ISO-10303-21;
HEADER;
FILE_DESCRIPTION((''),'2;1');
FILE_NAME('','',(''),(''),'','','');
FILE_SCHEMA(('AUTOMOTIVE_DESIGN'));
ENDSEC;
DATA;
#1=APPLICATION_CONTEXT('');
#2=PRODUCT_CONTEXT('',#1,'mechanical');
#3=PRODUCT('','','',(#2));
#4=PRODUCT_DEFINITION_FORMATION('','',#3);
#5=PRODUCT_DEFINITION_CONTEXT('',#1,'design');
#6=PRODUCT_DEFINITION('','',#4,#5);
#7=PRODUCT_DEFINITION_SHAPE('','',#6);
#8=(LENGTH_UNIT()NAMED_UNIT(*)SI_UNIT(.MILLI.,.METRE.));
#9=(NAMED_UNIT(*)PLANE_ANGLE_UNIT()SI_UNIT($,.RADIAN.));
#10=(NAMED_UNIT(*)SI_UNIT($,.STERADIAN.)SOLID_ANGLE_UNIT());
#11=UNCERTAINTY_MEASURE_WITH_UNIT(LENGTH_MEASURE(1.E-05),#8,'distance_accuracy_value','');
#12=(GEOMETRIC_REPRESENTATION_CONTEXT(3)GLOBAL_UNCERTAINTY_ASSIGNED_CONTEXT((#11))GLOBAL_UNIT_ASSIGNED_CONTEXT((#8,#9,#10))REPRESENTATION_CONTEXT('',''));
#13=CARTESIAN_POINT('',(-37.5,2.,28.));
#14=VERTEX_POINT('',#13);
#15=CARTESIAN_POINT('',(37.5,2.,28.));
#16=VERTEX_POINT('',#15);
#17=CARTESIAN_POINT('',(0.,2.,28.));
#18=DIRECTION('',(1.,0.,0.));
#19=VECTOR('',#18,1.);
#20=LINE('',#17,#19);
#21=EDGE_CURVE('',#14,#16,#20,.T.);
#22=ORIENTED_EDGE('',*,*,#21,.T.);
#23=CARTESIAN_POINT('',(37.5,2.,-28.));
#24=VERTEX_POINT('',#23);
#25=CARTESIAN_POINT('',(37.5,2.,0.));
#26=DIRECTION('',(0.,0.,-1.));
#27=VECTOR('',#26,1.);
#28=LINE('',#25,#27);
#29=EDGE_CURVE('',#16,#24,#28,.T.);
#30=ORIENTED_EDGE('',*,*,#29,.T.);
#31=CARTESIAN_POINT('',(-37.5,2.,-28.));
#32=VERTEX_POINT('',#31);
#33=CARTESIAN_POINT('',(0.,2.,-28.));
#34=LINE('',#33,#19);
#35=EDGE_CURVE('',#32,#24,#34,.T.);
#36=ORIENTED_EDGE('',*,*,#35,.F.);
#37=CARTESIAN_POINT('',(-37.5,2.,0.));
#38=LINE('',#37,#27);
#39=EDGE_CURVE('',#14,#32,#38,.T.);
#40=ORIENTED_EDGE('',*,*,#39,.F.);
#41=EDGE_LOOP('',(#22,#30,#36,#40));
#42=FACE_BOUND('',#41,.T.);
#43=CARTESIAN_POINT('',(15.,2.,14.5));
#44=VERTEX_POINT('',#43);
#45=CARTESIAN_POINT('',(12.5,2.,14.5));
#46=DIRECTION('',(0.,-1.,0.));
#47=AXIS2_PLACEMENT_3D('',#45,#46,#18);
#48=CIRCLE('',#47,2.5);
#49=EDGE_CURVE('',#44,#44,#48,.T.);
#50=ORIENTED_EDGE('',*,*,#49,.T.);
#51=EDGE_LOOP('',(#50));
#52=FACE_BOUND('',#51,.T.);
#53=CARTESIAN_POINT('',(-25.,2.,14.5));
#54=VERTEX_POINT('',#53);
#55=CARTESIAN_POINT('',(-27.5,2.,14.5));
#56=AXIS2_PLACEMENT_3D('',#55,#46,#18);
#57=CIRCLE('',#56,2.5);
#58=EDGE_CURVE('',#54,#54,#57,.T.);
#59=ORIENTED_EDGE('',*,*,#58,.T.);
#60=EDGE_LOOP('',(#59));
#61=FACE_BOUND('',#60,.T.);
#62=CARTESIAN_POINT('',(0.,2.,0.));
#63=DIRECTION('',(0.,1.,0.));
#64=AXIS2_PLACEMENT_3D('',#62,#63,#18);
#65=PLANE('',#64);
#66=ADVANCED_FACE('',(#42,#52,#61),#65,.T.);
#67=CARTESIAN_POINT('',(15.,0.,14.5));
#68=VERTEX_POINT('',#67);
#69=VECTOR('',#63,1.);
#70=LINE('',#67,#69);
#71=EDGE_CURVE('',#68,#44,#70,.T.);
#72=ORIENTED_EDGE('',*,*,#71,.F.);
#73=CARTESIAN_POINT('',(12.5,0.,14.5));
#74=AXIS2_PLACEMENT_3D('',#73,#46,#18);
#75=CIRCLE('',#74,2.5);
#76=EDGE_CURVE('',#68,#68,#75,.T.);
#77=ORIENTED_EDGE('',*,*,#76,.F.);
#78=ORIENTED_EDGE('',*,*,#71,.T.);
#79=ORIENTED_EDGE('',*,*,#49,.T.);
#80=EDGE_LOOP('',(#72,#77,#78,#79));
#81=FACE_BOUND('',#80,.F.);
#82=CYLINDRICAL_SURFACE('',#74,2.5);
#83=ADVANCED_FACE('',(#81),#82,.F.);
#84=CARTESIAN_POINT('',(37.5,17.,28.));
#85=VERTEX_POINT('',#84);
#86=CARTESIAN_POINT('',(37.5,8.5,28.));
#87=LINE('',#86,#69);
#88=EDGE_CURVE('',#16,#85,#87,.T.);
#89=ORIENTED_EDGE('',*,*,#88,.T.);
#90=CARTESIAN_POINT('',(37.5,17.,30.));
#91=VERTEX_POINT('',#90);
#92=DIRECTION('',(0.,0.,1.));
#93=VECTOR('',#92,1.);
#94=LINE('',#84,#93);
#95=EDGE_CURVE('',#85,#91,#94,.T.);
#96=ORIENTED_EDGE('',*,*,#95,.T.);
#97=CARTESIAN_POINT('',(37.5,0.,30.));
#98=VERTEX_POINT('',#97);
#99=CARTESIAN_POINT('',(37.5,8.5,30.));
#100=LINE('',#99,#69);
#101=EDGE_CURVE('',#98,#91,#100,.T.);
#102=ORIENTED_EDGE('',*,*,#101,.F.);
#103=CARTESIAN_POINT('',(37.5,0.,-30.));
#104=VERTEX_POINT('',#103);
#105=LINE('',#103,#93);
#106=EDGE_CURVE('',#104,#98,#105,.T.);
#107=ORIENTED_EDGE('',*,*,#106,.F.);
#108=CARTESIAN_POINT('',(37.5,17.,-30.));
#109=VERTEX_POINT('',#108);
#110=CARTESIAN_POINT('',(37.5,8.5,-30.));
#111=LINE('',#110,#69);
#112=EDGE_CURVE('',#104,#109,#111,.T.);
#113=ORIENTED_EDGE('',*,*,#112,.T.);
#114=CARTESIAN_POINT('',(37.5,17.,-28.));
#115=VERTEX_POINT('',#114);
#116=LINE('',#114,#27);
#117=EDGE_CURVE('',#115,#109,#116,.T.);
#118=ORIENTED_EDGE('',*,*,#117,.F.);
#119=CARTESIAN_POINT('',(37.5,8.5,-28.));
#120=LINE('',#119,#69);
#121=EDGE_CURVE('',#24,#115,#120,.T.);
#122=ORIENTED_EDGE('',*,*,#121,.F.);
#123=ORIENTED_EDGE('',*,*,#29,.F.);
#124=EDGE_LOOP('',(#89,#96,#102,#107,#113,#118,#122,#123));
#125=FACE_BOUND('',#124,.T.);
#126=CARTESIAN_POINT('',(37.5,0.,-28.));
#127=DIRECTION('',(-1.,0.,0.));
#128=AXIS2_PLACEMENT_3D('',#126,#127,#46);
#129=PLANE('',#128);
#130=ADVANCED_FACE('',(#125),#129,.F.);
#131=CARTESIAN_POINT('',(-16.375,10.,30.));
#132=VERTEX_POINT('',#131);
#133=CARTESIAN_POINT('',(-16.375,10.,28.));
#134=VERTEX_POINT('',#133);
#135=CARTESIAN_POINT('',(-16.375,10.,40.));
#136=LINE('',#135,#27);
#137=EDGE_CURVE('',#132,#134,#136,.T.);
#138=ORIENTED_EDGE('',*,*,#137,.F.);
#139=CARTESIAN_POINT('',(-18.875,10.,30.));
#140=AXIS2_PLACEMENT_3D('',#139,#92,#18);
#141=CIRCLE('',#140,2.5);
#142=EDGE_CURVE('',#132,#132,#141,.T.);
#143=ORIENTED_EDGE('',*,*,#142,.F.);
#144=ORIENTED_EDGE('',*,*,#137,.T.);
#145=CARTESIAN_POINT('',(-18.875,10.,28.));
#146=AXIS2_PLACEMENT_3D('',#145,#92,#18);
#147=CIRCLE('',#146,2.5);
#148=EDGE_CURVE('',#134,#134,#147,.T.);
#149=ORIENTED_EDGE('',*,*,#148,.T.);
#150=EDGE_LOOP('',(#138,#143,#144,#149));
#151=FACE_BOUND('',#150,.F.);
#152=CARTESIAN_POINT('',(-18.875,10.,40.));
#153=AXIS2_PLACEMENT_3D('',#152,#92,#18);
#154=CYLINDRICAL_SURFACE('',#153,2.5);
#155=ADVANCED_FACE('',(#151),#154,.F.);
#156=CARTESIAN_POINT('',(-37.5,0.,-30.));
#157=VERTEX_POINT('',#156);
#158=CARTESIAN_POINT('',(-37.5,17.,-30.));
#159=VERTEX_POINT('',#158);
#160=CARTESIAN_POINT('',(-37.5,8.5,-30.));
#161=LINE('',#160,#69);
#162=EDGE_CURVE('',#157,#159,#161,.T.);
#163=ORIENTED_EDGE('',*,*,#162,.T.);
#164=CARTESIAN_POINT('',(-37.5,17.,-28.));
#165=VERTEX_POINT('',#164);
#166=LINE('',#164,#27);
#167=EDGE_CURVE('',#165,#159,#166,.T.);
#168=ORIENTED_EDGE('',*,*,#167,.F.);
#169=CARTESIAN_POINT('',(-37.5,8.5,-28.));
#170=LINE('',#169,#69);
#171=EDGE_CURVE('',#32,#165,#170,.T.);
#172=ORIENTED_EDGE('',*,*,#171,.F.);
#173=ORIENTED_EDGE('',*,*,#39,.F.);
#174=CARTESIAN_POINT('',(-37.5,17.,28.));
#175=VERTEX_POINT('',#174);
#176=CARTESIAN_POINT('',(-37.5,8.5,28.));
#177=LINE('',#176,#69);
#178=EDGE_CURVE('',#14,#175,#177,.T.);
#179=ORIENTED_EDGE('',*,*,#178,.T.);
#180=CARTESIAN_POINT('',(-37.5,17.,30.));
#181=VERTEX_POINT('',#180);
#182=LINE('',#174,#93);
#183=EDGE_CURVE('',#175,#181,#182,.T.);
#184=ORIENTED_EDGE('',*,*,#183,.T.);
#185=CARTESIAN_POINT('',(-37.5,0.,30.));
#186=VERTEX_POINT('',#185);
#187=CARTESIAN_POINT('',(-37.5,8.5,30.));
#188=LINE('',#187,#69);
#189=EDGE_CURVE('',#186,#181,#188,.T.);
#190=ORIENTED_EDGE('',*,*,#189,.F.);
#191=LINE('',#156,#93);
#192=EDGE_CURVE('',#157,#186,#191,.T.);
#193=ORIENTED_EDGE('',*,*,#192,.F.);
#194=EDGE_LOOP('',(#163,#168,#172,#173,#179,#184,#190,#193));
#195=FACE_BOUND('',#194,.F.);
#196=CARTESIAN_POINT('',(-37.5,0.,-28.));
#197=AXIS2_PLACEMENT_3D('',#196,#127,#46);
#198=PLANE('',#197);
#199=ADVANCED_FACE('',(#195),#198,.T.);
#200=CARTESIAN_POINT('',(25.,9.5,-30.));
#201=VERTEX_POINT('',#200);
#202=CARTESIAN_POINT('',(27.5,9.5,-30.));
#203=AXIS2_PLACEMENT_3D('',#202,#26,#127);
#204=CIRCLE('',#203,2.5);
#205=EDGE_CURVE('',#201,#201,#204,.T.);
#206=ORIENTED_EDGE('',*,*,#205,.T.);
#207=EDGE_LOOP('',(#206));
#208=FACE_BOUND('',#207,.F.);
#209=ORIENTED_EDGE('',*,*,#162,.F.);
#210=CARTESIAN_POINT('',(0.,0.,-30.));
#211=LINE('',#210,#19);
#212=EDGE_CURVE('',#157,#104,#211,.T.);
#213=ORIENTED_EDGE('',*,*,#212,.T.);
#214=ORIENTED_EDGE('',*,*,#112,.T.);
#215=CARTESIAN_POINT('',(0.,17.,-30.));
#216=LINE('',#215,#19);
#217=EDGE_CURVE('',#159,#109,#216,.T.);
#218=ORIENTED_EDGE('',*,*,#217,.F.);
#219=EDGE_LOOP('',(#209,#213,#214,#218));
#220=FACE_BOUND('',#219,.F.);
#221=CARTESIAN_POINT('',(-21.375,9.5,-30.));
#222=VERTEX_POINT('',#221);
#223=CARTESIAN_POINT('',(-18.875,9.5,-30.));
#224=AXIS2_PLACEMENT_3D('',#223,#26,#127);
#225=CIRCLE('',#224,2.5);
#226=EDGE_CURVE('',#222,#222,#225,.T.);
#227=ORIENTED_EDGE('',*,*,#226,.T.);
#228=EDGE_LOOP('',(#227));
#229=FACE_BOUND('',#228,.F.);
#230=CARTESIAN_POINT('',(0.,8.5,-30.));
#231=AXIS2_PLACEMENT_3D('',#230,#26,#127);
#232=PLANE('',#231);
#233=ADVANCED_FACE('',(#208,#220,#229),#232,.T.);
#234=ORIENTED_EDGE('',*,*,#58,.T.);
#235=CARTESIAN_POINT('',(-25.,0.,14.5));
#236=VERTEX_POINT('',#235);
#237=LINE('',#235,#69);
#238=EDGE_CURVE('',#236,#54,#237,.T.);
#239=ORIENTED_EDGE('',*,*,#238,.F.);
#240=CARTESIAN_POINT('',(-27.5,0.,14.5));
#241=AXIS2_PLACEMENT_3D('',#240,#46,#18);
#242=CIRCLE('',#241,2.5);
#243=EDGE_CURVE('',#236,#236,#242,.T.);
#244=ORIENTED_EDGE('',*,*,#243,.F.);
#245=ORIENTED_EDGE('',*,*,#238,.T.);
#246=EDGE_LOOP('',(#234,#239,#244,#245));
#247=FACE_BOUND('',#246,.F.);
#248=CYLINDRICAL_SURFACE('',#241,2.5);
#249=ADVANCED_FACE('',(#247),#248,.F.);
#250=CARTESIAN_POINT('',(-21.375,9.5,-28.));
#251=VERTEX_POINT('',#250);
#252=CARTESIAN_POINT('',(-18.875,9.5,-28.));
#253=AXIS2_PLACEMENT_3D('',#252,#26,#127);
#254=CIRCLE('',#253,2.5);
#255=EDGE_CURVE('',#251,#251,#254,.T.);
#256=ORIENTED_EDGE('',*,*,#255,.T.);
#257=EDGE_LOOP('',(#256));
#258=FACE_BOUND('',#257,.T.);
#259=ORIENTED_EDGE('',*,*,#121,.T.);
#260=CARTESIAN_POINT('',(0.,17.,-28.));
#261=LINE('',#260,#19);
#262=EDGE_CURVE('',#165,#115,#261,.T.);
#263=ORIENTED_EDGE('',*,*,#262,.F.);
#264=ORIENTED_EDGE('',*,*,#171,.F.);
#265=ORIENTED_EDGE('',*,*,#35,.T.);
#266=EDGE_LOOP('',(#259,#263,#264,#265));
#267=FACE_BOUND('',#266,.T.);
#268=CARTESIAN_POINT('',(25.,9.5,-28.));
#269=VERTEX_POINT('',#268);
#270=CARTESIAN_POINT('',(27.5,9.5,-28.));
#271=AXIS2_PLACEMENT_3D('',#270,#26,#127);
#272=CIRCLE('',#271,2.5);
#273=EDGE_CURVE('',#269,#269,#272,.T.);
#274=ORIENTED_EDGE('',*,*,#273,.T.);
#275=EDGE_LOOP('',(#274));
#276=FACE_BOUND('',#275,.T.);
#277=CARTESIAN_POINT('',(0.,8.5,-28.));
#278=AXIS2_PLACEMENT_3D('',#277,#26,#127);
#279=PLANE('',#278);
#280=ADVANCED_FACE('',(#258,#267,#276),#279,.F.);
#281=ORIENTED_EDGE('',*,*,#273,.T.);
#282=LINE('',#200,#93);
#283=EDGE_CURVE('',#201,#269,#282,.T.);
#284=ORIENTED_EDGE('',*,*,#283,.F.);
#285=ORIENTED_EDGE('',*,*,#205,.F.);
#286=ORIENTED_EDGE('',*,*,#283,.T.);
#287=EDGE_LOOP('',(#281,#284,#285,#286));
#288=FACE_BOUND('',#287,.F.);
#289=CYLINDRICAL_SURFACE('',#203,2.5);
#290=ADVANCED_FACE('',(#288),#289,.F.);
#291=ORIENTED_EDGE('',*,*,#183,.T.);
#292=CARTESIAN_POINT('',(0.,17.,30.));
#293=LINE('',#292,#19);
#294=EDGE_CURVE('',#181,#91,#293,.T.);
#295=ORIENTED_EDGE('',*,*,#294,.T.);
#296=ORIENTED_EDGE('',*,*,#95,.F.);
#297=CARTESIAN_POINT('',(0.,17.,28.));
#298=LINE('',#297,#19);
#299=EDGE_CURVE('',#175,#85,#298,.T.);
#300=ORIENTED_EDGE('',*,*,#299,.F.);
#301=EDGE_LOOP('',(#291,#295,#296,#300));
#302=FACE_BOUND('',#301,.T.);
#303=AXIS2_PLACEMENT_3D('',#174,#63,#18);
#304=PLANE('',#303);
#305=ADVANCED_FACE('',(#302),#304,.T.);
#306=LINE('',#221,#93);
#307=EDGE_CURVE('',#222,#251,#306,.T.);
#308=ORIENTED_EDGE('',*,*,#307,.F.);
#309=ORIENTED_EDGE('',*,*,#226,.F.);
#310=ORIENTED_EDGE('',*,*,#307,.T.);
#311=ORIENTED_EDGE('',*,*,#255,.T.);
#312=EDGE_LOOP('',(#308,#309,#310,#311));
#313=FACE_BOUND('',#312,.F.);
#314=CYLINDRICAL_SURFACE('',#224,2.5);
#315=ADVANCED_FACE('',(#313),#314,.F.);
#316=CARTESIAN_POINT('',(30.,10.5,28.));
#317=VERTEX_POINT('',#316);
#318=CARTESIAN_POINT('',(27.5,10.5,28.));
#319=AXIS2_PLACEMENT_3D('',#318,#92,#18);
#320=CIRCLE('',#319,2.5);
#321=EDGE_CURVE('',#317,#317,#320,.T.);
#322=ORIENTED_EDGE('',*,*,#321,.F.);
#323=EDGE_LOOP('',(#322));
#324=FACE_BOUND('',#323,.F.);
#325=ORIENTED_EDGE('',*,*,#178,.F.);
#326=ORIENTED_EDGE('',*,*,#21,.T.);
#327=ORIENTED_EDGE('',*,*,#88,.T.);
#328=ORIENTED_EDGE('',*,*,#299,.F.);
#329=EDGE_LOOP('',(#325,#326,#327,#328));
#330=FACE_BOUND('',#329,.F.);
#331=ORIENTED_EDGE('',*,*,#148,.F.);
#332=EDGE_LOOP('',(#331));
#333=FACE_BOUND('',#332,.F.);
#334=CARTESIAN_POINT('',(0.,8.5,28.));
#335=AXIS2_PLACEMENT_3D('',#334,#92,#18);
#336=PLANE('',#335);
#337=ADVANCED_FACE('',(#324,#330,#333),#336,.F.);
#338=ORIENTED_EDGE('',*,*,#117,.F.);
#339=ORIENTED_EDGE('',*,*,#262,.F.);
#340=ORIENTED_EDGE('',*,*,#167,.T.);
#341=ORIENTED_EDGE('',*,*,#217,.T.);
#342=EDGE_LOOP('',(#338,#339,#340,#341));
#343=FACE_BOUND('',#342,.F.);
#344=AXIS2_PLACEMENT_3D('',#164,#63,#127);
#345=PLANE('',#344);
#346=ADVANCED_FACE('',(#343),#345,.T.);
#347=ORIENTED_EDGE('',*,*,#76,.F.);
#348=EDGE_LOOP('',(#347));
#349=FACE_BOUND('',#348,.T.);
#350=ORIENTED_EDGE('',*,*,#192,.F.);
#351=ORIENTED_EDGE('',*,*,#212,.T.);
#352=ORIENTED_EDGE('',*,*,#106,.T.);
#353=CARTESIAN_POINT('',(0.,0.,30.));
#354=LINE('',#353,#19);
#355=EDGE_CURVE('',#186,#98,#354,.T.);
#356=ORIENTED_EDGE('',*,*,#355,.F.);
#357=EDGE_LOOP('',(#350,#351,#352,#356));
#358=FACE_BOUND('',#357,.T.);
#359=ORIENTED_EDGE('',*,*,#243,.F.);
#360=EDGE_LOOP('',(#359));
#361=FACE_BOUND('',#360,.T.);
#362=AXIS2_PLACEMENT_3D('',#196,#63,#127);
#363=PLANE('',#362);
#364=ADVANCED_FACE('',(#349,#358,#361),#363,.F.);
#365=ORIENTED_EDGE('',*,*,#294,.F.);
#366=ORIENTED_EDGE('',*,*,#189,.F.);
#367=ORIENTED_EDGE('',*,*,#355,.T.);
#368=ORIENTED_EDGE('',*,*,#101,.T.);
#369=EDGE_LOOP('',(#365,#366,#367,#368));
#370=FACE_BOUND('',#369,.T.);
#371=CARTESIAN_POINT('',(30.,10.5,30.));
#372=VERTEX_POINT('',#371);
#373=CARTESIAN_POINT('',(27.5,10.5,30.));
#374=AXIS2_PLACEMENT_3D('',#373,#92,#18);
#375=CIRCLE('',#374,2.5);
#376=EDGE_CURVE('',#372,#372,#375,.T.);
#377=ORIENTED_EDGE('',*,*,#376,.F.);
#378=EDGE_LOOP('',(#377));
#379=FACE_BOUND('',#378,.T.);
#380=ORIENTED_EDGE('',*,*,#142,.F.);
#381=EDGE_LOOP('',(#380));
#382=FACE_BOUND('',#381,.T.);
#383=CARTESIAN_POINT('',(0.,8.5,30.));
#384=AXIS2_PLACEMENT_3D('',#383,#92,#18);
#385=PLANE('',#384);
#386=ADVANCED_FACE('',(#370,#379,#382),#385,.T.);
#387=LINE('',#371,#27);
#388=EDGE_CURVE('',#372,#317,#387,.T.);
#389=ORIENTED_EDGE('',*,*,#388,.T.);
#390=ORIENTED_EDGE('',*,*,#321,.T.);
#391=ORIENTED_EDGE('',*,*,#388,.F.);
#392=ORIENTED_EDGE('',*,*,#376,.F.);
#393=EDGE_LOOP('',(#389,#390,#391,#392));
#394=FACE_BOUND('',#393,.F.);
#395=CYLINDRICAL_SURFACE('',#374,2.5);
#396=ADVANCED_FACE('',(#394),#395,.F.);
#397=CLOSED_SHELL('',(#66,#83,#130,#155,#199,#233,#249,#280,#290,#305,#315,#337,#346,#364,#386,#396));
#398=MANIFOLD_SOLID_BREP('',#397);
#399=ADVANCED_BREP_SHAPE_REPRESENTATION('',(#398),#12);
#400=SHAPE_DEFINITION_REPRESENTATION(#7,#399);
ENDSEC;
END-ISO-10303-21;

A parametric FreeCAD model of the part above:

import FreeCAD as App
import Part
import Sketcher

V = App.Vector
Q = App.Units.Quantity

doc = App.newDocument("Part")
body = doc.addObject("PartDesign::Body", "Body")

sketch1 = body.newObject("Sketcher::SketchObject", "Sketch")
sketch1.AttachmentSupport = (doc.getObject("XZ_Plane"), [""])
sketch1.MapMode = "FlatFace"
sketch1.addGeometry([
    Part.LineSegment(V(-38, -28, 0), V(-38, 28, 0)),
    Part.LineSegment(V(-38, 28, 0), V(38, 28, 0)),
    Part.LineSegment(V(38, 28, 0), V(38, -28, 0)),
    Part.LineSegment(V(38, -28, 0), V(-38, -28, 0)),
], False)
sketch1.addConstraint([
    Sketcher.Constraint("Coincident", 0, 2, 1, 1),
    Sketcher.Constraint("Coincident", 1, 2, 2, 1),
    Sketcher.Constraint("Coincident", 2, 2, 3, 1),
    Sketcher.Constraint("Coincident", 3, 2, 0, 1),
    Sketcher.Constraint("Vertical", 0),
    Sketcher.Constraint("Horizontal", 1),
    Sketcher.Constraint("Vertical", 2),
    Sketcher.Constraint("Horizontal", 3),
    Sketcher.Constraint("Symmetric", 0, 2, 2, 2, -1, 1),
    Sketcher.Constraint("DistanceX", 1, 1, 1, 2, Q("75 mm")),
    Sketcher.Constraint("DistanceY", 0, 1, 0, 2, Q("56 mm")),
])
pad1 = body.newObject("PartDesign::Pad", "Pad")
pad1.Profile = sketch1
pad1.Length = 2
pad1.Reversed = True

sketch2 = body.newObject("Sketcher::SketchObject", "Sketch001")
sketch2.AttachmentSupport = (doc.getObject("XY_Plane"), [""])
sketch2.MapMode = "FlatFace"
sketch2.AttachmentOffset = App.Placement(V(0, 0, 28), App.Rotation())
sketch2.addGeometry([
    Part.LineSegment(V(-38, 17, 0), V(-38, 0, 0)),
    Part.LineSegment(V(-38, 0, 0), V(38, 0, 0)),
    Part.LineSegment(V(38, 0, 0), V(38, 17, 0)),
    Part.LineSegment(V(38, 17, 0), V(-38, 17, 0)),
], False)
sketch2.addConstraint([
    Sketcher.Constraint("Coincident", 0, 2, 1, 1),
    Sketcher.Constraint("Coincident", 1, 2, 2, 1),
    Sketcher.Constraint("Coincident", 2, 2, 3, 1),
    Sketcher.Constraint("Coincident", 3, 2, 0, 1),
    Sketcher.Constraint("Vertical", 0),
    Sketcher.Constraint("Horizontal", 1),
    Sketcher.Constraint("Vertical", 2),
    Sketcher.Constraint("Horizontal", 3),
    Sketcher.Constraint("Symmetric", 0, 2, 1, 2, -1, 1),
    Sketcher.Constraint("DistanceX", 1, 1, 1, 2, Q("75 mm")),
    Sketcher.Constraint("DistanceY", 0, 2, 0, 1, Q("17 mm")),
])
pad2 = body.newObject("PartDesign::Pad", "Pad001")
pad2.Profile = sketch2
pad2.Length = 2
doc.recompute()

mirrored = body.newObject("PartDesign::Mirrored", "Mirrored")
mirrored.Originals = [pad2]
mirrored.MirrorPlane = (doc.getObject("XY_Plane"), [""])
body.Tip = mirrored

sketch3 = body.newObject("Sketcher::SketchObject", "Sketch002")
sketch3.AttachmentSupport = (doc.getObject("XY_Plane"), [""])
sketch3.MapMode = "FlatFace"
sketch3.AttachmentOffset = App.Placement(V(0, 0, 40), App.Rotation())
sketch3.addGeometry(Part.Circle(V(-18.9, 10, 0), V(0, 0, 1), 2.5), False)
sketch3.addConstraint([
    Sketcher.Constraint("Diameter", 0, Q("5 mm")),
    Sketcher.Constraint("DistanceY", -1, 1, 0, 3, Q("10 mm")),
    Sketcher.Constraint("DistanceX", 0, 3, -1, 1, Q("18.875 mm")),
])
pocket1 = body.newObject("PartDesign::Pocket", "Pocket")
pocket1.Profile = sketch3
pocket1.Length = 12

sketch4 = body.newObject("Sketcher::SketchObject", "Sketch003")
sketch4.AttachmentSupport = (doc.getObject("XY_Plane"), [""])
sketch4.MapMode = "FlatFace"
sketch4.AttachmentOffset = App.Placement(V(0, 0, 30), App.Rotation())
sketch4.addGeometry(Part.Circle(V(27.5, 10.5, 0), V(0, 0, 1), 2.5), False)
sketch4.addConstraint([
    Sketcher.Constraint("Diameter", 0, Q("5 mm")),
    Sketcher.Constraint("DistanceX", -1, 1, 0, 3, Q("27.5 mm")),
    Sketcher.Constraint("DistanceY", -1, 1, 0, 3, Q("10.5 mm")),
])
pocket2 = body.newObject("PartDesign::Pocket", "Pocket001")
pocket2.Profile = sketch4
pocket2.Type = "UpToFirst"

sketch5 = body.newObject("Sketcher::SketchObject", "Sketch004")
sketch5.AttachmentSupport = (doc.getObject("XZ_Plane"), [""])
sketch5.MapMode = "FlatFace"
sketch5.addGeometry([
    Part.Circle(V(12.5, 14.5, 0), V(0, 0, 1), 2.5),
    Part.Circle(V(-27.5, 14.5, 0), V(0, 0, 1), 2.5),
], False)
sketch5.addConstraint([
    Sketcher.Constraint("Equal", 0, 1),
    Sketcher.Constraint("Horizontal", 0, 3, 1, 3),
    Sketcher.Constraint("Diameter", 0, Q("5 mm")),
    Sketcher.Constraint("DistanceX", 1, 3, 0, 3, Q("40 mm")),
    Sketcher.Constraint("DistanceX", -1, 1, 0, 3, Q("12.5 mm")),
    Sketcher.Constraint("DistanceY", -1, 1, 0, 3, Q("14.5 mm")),
])
pocket3 = body.newObject("PartDesign::Pocket", "Pocket002")
pocket3.Profile = sketch5
pocket3.Length = 2

sketch6 = body.newObject("Sketcher::SketchObject", "Sketch005")
sketch6.AttachmentSupport = (doc.getObject("XY_Plane"), [""])
sketch6.MapMode = "FlatFace"
sketch6.AttachmentOffset = App.Placement(V(0, 0, -30), App.Rotation())
sketch6.addGeometry(Part.Circle(V(27.5, 9.5, 0), V(0, 0, 1), 2.5), False)
sketch6.addConstraint([
    Sketcher.Constraint("Diameter", 0, Q("5 mm")),
    Sketcher.Constraint("DistanceX", -1, 1, 0, 3, Q("27.5 mm")),
    Sketcher.Constraint("DistanceY", -1, 1, 0, 3, Q("9.5 mm")),
])
pocket4 = body.newObject("PartDesign::Pocket", "Pocket003")
pocket4.Profile = sketch6
pocket4.Type = "UpToFirst"
pocket4.Reversed = True

sketch7 = body.newObject("Sketcher::SketchObject", "Sketch006")
sketch7.AttachmentSupport = (doc.getObject("XY_Plane"), [""])
sketch7.MapMode = "FlatFace"
sketch7.AttachmentOffset = App.Placement(V(0, 0, -30), App.Rotation())
sketch7.addGeometry(Part.Circle(V(-18.9, 9.5, 0), V(0, 0, 1), 2.5), False)
sketch7.addConstraint([
    Sketcher.Constraint("Diameter", 0, Q("5 mm")),
    Sketcher.Constraint("DistanceY", -1, 1, 0, 3, Q("9.5 mm")),
    Sketcher.Constraint("DistanceX", 0, 3, -1, 1, Q("18.875 mm")),
])
pocket5 = body.newObject("PartDesign::Pocket", "Pocket004")
pocket5.Profile = sketch7
pocket5.Type = "UpToFirst"
pocket5.Reversed = True

doc.recompute()
